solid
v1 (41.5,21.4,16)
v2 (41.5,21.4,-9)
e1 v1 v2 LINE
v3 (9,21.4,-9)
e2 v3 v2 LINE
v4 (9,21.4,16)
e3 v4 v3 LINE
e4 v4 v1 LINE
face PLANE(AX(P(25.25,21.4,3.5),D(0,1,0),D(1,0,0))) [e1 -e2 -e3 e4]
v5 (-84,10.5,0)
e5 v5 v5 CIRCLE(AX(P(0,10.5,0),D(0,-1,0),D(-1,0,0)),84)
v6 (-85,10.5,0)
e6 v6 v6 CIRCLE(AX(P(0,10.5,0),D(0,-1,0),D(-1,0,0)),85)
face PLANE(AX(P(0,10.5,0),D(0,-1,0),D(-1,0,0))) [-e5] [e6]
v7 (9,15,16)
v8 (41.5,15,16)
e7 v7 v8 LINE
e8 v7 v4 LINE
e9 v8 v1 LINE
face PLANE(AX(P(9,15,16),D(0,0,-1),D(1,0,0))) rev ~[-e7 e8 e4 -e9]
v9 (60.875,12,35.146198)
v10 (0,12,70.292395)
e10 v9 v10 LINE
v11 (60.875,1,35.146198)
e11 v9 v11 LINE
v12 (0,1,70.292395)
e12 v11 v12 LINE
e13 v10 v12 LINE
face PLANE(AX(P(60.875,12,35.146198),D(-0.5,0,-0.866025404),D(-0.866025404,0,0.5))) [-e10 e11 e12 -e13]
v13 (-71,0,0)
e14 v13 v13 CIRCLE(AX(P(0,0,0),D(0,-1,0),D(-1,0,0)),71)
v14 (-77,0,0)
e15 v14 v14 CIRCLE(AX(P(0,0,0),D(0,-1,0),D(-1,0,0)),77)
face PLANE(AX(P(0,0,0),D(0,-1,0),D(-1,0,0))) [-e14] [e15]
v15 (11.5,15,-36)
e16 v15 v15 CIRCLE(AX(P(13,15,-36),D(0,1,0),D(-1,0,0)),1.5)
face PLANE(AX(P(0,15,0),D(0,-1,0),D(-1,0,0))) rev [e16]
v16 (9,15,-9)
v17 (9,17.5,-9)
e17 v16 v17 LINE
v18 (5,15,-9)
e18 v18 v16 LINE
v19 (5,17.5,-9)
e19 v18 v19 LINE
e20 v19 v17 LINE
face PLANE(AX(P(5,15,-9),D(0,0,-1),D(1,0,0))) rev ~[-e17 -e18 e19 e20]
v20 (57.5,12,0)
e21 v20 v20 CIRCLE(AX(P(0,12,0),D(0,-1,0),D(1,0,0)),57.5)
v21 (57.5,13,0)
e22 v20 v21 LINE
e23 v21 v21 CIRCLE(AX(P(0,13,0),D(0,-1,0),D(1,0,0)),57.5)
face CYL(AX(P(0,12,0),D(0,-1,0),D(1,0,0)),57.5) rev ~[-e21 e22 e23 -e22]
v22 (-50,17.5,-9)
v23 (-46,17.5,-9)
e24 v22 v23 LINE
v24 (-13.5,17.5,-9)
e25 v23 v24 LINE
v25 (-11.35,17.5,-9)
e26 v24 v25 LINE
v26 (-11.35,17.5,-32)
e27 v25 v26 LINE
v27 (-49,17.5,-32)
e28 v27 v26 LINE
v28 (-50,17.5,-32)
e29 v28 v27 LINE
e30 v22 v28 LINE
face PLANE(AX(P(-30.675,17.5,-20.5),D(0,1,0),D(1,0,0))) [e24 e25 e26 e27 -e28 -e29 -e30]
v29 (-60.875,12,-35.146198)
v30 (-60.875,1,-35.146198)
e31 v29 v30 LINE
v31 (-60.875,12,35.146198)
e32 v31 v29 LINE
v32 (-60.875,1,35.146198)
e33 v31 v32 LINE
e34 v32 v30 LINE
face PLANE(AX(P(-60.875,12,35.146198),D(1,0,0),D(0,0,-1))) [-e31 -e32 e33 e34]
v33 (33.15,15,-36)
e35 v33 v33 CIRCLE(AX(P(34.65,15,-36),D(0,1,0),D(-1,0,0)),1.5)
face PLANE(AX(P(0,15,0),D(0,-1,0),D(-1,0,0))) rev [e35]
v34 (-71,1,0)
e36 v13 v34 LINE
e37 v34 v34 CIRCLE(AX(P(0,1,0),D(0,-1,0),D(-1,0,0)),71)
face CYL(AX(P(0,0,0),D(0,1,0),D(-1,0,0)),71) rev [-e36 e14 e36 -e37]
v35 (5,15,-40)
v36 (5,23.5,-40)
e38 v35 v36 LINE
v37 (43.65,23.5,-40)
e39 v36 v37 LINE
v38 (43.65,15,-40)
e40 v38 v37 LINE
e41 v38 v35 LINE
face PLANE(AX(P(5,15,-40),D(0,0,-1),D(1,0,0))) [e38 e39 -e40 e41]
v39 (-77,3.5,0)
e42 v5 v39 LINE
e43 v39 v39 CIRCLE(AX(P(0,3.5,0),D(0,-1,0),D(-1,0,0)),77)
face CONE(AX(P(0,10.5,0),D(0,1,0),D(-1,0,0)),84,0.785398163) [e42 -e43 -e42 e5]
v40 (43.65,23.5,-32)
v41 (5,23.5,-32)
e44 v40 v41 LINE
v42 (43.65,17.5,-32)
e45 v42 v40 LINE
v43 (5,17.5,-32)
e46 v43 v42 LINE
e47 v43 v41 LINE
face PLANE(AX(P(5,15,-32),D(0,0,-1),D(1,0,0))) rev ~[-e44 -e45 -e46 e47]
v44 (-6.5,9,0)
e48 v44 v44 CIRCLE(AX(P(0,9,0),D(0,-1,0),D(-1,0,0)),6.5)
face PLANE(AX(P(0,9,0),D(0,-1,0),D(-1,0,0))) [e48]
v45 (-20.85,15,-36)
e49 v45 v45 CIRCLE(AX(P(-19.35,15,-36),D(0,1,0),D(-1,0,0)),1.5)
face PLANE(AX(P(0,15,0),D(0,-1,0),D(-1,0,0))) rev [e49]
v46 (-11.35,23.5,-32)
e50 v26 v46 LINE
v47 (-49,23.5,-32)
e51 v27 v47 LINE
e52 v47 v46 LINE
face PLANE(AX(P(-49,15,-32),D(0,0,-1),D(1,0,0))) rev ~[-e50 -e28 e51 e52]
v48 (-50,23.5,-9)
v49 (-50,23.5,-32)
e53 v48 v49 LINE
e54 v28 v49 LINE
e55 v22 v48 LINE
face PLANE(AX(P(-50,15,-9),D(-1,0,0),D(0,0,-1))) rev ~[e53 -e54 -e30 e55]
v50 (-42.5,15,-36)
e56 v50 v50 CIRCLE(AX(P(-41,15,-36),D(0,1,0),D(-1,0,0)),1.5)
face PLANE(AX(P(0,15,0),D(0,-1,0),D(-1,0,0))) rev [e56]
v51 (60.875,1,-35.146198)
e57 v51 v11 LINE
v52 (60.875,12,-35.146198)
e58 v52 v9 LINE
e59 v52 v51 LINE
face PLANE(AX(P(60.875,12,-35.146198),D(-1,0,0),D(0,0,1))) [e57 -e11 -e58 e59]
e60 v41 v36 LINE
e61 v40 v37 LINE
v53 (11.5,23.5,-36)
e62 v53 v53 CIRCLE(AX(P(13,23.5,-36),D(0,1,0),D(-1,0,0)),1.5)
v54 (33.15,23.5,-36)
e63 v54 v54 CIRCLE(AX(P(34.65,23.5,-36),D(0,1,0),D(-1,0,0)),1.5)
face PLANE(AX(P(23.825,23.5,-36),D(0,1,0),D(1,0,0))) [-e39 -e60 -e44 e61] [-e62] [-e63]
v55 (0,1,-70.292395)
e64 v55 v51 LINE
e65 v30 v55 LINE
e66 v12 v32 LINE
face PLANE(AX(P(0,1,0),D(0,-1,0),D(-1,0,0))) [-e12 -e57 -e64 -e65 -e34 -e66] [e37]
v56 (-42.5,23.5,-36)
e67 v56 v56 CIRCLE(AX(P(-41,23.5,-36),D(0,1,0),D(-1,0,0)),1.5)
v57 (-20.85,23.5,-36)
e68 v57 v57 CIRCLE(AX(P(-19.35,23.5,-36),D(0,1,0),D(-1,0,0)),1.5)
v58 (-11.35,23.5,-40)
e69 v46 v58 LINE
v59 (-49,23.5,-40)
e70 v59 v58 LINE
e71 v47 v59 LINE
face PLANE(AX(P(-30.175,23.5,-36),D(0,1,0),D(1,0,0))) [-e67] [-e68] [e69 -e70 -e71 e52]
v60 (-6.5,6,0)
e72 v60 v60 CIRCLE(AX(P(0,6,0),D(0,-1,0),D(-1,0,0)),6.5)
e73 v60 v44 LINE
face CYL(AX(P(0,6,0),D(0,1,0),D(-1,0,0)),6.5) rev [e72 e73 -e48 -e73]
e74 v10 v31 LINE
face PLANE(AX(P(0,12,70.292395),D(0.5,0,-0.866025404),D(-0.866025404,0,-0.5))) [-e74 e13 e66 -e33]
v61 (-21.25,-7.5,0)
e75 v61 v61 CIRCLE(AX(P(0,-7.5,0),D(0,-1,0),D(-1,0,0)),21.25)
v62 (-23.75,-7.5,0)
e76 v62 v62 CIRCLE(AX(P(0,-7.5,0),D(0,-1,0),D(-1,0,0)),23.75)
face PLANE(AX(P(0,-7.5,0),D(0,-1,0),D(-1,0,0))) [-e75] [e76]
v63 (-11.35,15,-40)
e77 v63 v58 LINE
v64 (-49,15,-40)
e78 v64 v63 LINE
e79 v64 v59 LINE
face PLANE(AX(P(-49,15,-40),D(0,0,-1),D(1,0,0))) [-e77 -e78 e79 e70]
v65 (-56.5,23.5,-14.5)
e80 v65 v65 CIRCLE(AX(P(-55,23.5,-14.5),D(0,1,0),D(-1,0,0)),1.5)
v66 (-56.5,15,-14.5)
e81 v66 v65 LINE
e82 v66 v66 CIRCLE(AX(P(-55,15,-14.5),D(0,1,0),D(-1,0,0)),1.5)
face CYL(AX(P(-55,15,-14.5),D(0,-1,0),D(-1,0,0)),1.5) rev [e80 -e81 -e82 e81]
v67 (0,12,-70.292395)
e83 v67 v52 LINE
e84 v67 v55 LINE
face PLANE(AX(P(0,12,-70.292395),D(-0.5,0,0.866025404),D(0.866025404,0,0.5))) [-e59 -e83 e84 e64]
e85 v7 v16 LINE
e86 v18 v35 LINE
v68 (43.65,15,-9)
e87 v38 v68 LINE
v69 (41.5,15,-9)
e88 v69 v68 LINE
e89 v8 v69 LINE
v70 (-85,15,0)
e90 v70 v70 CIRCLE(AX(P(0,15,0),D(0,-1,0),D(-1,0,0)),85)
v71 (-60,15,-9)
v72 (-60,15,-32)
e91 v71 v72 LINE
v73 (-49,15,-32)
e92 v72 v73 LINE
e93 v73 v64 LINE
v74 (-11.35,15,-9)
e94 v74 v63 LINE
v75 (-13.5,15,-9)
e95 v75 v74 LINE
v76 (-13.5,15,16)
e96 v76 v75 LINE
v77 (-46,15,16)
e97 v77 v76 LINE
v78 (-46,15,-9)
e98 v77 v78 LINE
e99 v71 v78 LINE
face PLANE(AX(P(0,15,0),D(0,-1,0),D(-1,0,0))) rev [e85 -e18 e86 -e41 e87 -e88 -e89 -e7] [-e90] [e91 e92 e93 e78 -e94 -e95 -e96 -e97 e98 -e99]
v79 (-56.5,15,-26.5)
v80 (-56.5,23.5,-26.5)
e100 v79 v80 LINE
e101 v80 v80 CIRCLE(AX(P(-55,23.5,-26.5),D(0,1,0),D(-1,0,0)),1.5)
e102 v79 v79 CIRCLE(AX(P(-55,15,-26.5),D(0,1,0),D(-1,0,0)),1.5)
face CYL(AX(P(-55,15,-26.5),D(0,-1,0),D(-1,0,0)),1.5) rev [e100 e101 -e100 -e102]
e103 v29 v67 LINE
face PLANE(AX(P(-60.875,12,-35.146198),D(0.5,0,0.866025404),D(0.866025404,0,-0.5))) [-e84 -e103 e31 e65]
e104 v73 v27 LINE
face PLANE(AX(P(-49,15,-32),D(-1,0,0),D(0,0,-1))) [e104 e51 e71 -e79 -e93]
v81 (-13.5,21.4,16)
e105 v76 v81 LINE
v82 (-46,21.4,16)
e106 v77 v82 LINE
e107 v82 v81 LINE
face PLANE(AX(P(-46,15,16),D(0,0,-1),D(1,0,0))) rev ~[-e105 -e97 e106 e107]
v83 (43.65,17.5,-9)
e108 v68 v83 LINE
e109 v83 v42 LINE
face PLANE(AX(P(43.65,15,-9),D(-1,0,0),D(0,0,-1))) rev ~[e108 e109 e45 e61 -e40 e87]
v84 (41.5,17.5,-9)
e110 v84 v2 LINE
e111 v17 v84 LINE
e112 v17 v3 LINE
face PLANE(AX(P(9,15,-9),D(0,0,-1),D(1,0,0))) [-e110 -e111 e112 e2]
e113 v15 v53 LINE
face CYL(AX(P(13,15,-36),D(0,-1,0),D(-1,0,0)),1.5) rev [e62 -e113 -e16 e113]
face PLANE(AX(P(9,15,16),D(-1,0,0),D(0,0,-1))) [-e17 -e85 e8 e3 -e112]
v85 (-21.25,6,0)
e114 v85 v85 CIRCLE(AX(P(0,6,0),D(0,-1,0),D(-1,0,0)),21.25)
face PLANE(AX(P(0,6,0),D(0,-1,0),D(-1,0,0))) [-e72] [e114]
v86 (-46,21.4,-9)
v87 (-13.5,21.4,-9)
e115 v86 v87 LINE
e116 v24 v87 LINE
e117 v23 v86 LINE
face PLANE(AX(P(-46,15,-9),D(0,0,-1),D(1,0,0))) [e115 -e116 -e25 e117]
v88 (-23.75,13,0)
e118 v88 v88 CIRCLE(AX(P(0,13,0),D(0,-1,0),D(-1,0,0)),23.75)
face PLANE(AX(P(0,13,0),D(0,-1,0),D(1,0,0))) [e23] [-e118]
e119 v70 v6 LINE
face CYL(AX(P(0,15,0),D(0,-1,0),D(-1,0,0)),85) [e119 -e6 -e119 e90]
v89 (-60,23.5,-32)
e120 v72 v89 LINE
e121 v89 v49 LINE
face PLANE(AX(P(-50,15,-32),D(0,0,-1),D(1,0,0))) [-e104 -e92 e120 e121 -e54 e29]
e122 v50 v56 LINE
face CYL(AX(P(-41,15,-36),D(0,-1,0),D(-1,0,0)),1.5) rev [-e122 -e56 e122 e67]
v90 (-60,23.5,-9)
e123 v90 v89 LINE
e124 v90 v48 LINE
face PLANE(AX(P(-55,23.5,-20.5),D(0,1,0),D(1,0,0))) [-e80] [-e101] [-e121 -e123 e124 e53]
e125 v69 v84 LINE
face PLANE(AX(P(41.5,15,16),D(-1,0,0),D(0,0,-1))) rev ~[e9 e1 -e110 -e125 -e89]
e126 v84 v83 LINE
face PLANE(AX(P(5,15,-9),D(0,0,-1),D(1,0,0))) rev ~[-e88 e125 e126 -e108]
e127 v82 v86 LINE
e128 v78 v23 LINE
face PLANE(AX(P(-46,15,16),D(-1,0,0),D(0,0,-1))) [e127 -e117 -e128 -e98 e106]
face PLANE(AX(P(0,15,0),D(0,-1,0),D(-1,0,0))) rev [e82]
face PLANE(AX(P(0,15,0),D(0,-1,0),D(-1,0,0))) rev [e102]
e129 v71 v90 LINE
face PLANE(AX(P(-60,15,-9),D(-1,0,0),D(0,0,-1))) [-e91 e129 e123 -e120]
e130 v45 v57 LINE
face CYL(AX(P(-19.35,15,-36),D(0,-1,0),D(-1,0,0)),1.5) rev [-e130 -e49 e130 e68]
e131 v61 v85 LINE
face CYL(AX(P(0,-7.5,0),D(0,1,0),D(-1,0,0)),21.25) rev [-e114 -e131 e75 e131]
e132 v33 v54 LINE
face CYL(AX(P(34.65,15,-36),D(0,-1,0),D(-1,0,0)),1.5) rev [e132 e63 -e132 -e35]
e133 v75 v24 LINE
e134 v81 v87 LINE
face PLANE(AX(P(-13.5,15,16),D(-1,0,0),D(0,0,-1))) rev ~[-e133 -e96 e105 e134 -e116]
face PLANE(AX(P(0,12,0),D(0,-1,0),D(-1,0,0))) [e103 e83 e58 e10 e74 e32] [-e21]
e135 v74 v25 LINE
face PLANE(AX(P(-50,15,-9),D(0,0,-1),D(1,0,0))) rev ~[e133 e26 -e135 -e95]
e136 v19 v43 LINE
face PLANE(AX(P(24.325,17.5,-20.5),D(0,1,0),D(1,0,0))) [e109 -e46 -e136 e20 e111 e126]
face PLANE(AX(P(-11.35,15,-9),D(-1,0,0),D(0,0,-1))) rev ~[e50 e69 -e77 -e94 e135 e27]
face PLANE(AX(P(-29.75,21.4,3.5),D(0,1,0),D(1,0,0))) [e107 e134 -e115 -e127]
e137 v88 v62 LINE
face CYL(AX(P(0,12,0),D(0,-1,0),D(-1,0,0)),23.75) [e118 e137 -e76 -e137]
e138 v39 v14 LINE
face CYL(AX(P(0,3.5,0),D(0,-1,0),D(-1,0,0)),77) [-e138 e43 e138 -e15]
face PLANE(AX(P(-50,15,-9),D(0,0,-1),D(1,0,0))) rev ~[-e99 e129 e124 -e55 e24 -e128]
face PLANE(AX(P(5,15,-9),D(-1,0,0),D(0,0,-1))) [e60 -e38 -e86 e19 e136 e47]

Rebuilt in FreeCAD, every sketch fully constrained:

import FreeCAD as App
import Part
import Sketcher

V = App.Vector
Q = App.Units.Quantity


def add_polygon(sketch, points):
    """Adds a closed chain of lines whose ends are joined by coincident constraints."""
    first, n = sketch.GeometryCount, len(points)
    for a, b in zip(points, points[1:] + points[:1]):
        sketch.addGeometry(Part.LineSegment(App.Vector(*a, 0), App.Vector(*b, 0)), False)
    for i in range(n):
        sketch.addConstraint(Sketcher.Constraint("Coincident", first + i, 2, first + (i + 1) % n, 1))

doc = App.newDocument("Part")
body = doc.addObject("PartDesign::Body", "Body")

sketch1 = body.newObject("Sketcher::SketchObject", "Sketch")
sketch1.AttachmentSupport = (doc.getObject("XY_Plane"), [""])
sketch1.MapMode = "FlatFace"
add_polygon(sketch1, [(0, 15), (0, 9), (6.5, 9), (6.5, 6), (21.2, 6), (21.2, -7.5), (23.8, -7.5), (23.8, 12), (71, 12), (71, 0), (77, 0), (77, 3.5), (84, 10.5), (85, 10.5), (85, 15)])
sketch1.addConstraint(Sketcher.Constraint("Vertical", 0))
sketch1.addConstraint(Sketcher.Constraint("Horizontal", 1))
sketch1.addConstraint(Sketcher.Constraint("Vertical", 2))
sketch1.addConstraint(Sketcher.Constraint("Horizontal", 3))
sketch1.addConstraint(Sketcher.Constraint("Vertical", 4))
sketch1.addConstraint(Sketcher.Constraint("Horizontal", 5))
sketch1.addConstraint(Sketcher.Constraint("Vertical", 6))
sketch1.addConstraint(Sketcher.Constraint("Horizontal", 7))
sketch1.addConstraint(Sketcher.Constraint("Vertical", 8))
sketch1.addConstraint(Sketcher.Constraint("Horizontal", 9))
sketch1.addConstraint(Sketcher.Constraint("Vertical", 10))
sketch1.addConstraint(Sketcher.Constraint("Horizontal", 12))
sketch1.addConstraint(Sketcher.Constraint("Vertical", 13))
sketch1.addConstraint(Sketcher.Constraint("Horizontal", 14))
sketch1.addConstraint(Sketcher.Constraint("PointOnObject", 0, 2, -2))
sketch1.addConstraint(Sketcher.Constraint("PointOnObject", 8, 2, -1))
sketch1.addConstraint(Sketcher.Constraint("Equal", 9, 0))
sketch1.addConstraint(Sketcher.Constraint("DistanceX", 9, 1, 9, 2, Q("6 mm")))
sketch1.addConstraint(Sketcher.Constraint("DistanceX", 12, 1, 12, 2, Q("1 mm")))
sketch1.addConstraint(Sketcher.Constraint("DistanceX", 14, 2, 14, 1, Q("85 mm")))
sketch1.addConstraint(Sketcher.Constraint("DistanceY", 2, 2, 2, 1, Q("3 mm")))
sketch1.addConstraint(Sketcher.Constraint("DistanceY", 8, 2, 8, 1, Q("12 mm")))
sketch1.addConstraint(Sketcher.Constraint("Angle", 11, Q("45 deg")))
sketch1.addConstraint(Sketcher.Constraint("DistanceX", 1, 1, 1, 2, Q("6.5 mm")))
sketch1.addConstraint(Sketcher.Constraint("DistanceX", 5, 1, 5, 2, Q("2.5 mm")))
sketch1.addConstraint(Sketcher.Constraint("DistanceY", 4, 2, 4, 1, Q("13.5 mm")))
sketch1.addConstraint(Sketcher.Constraint("DistanceY", 6, 1, 6, 2, Q("19.5 mm")))
sketch1.addConstraint(Sketcher.Constraint("DistanceY", 10, 1, 10, 2, Q("3.5 mm")))
sketch1.addConstraint(Sketcher.Constraint("DistanceY", 13, 1, 13, 2, Q("4.5 mm")))
sketch1.addConstraint(Sketcher.Constraint("DistanceX", 3, 1, 3, 2, Q("14.75 mm")))
revolution = body.newObject("PartDesign::Revolution", "Revolution")
revolution.Profile = sketch1
revolution.ReferenceAxis = (sketch1, ["V_Axis"])
revolution.Angle = 360

sketch2 = body.newObject("Sketcher::SketchObject", "Sketch001")
sketch2.AttachmentSupport = (doc.getObject("XZ_Plane"), [""])
sketch2.MapMode = "FlatFace"
sketch2.AttachmentOffset = App.Placement(V(0, 0, -12), App.Rotation())
sketch2.addGeometry(Part.Circle(V(0, 0, 0), V(0, 0, 1), 71), False)
add_polygon(sketch2, [(-61, 35), (0, 70), (61, 35), (61, -35), (0, -70), (-61, -35)])
sketch2.addConstraint(Sketcher.Constraint("Vertical", 3))
sketch2.addConstraint(Sketcher.Constraint("Vertical", 6))
sketch2.addConstraint(Sketcher.Constraint("Coincident", 0, 3, -1, 1))
sketch2.addConstraint(Sketcher.Constraint("Symmetric", 1, 2, 4, 2, -1, 1))
sketch2.addConstraint(Sketcher.Constraint("Symmetric", 2, 2, 5, 2, -1, 1))
sketch2.addConstraint(Sketcher.Constraint("PointOnObject", 1, 2, -2))
sketch2.addConstraint(Sketcher.Constraint("Parallel", 1, 4))
sketch2.addConstraint(Sketcher.Constraint("Horizontal", 3, 2, 5, 2))
sketch2.addConstraint(Sketcher.Constraint("Diameter", 0, Q("142 mm")))
sketch2.addConstraint(Sketcher.Constraint("Angle", 1, Q("30 deg")))
sketch2.addConstraint(Sketcher.Constraint("DistanceX", 5, 2, 3, 2, Q("121.75 mm")))
sketch2.addConstraint(Sketcher.Constraint("DistanceY", 3, 2, 3, 1, Q("70.292395 mm")))
pad1 = body.newObject("PartDesign::Pad", "Pad")
pad1.Profile = sketch2
pad1.Length = 11

sketch3 = body.newObject("Sketcher::SketchObject", "Sketch002")
sketch3.AttachmentSupport = (doc.getObject("XZ_Plane"), [""])
sketch3.MapMode = "FlatFace"
sketch3.AttachmentOffset = App.Placement(V(0, 0, -15), App.Rotation())
add_polygon(sketch3, [(-49, -40), (-49, -32), (-11.3, -32), (-11.3, -40)])
sketch3.addGeometry(Part.Circle(V(-41, -36, 0), V(0, 0, 1), 1.5), False)
sketch3.addGeometry(Part.Circle(V(-19.4, -36, 0), V(0, 0, 1), 1.5), False)
add_polygon(sketch3, [(-60, -32), (-60, -9), (-50, -9), (-50, -32)])
sketch3.addGeometry(Part.Circle(V(-55, -14.5, 0), V(0, 0, 1), 1.5), False)
sketch3.addGeometry(Part.Circle(V(-55, -26.5, 0), V(0, 0, 1), 1.5), False)
add_polygon(sketch3, [(5, -40), (5, -32), (43.6, -32), (43.6, -40)])
sketch3.addGeometry(Part.Circle(V(13, -36, 0), V(0, 0, 1), 1.5), False)
sketch3.addGeometry(Part.Circle(V(34.6, -36, 0), V(0, 0, 1), 1.5), False)
sketch3.addConstraint(Sketcher.Constraint("Vertical", 0))
sketch3.addConstraint(Sketcher.Constraint("Horizontal", 1))
sketch3.addConstraint(Sketcher.Constraint("Vertical", 2))
sketch3.addConstraint(Sketcher.Constraint("Horizontal", 3))
sketch3.addConstraint(Sketcher.Constraint("Vertical", 6))
sketch3.addConstraint(Sketcher.Constraint("Horizontal", 7))
sketch3.addConstraint(Sketcher.Constraint("Vertical", 8))
sketch3.addConstraint(Sketcher.Constraint("Horizontal", 9))
sketch3.addConstraint(Sketcher.Constraint("Vertical", 12))
sketch3.addConstraint(Sketcher.Constraint("Horizontal", 13))
sketch3.addConstraint(Sketcher.Constraint("Vertical", 14))
sketch3.addConstraint(Sketcher.Constraint("Horizontal", 15))
sketch3.addConstraint(Sketcher.Constraint("Equal", 4, 5))
sketch3.addConstraint(Sketcher.Constraint("Equal", 5, 10))
sketch3.addConstraint(Sketcher.Constraint("Equal", 10, 11))
sketch3.addConstraint(Sketcher.Constraint("Equal", 11, 16))
sketch3.addConstraint(Sketcher.Constraint("Equal", 16, 17))
sketch3.addConstraint(Sketcher.Constraint("Horizontal", 4, 3, 5, 3))
sketch3.addConstraint(Sketcher.Constraint("Horizontal", 5, 3, 16, 3))
sketch3.addConstraint(Sketcher.Constraint("Horizontal", 16, 3, 17, 3))
sketch3.addConstraint(Sketcher.Constraint("Horizontal", 1, 2, 8, 2))
sketch3.addConstraint(Sketcher.Constraint("Horizontal", 9, 2, 12, 2))
sketch3.addConstraint(Sketcher.Constraint("Horizontal", 3, 2, 14, 2))
sketch3.addConstraint(Sketcher.Constraint("Vertical", 10, 3, 11, 3))
sketch3.addConstraint(Sketcher.Constraint("Diameter", 4, Q("3 mm")))
sketch3.addConstraint(Sketcher.Constraint("DistanceX", 7, 1, 7, 2, Q("10 mm")))
sketch3.addConstraint(Sketcher.Constraint("DistanceY", 0, 1, 0, 2, Q("8 mm")))
sketch3.addConstraint(Sketcher.Constraint("DistanceY", 6, 1, 6, 2, Q("23 mm")))
sketch3.addConstraint(Sketcher.Constraint("DistanceX", 4, 3, -1, 1, Q("41 mm")))
sketch3.addConstraint(Sketcher.Constraint("DistanceY", 4, 3, -1, 1, Q("36 mm")))
sketch3.addConstraint(Sketcher.Constraint("DistanceX", 10, 3, -1, 1, Q("55 mm")))
sketch3.addConstraint(Sketcher.Constraint("DistanceX", -1, 1, 16, 3, Q("13 mm")))
sketch3.addConstraint(Sketcher.Constraint("DistanceX", 0, 2, -1, 1, Q("49 mm")))
sketch3.addConstraint(Sketcher.Constraint("DistanceY", 0, 2, -1, 1, Q("32 mm")))
sketch3.addConstraint(Sketcher.Constraint("DistanceX", 6, 2, -1, 1, Q("60 mm")))
sketch3.addConstraint(Sketcher.Constraint("DistanceX", -1, 1, 12, 2, Q("5 mm")))
sketch3.addConstraint(Sketcher.Constraint("DistanceY", 11, 3, 10, 3, Q("12 mm")))
sketch3.addConstraint(Sketcher.Constraint("DistanceX", 5, 3, 17, 3, Q("54 mm")))
sketch3.addConstraint(Sketcher.Constraint("DistanceX", 5, 3, 1, 2, Q("8 mm")))
sketch3.addConstraint(Sketcher.Constraint("DistanceX", 17, 3, 13, 2, Q("9 mm")))
sketch3.addConstraint(Sketcher.Constraint("DistanceX", 1, 1, 1, 2, Q("37.65 mm")))
sketch3.addConstraint(Sketcher.Constraint("DistanceY", 10, 3, -1, 1, Q("14.5 mm")))
pad2 = body.newObject("PartDesign::Pad", "Pad001")
pad2.Profile = sketch3
pad2.Length = 8.5
pad2.Reversed = True

sketch4 = body.newObject("Sketcher::SketchObject", "Sketch003")
sketch4.AttachmentSupport = (doc.getObject("XZ_Plane"), [""])
sketch4.MapMode = "FlatFace"
sketch4.AttachmentOffset = App.Placement(V(0, 0, -12), App.Rotation())
sketch4.addGeometry(Part.Circle(V(0, 0, 0), V(0, 0, 1), 58), False)
sketch4.addGeometry(Part.Circle(V(0, 0, 0), V(0, 0, 1), 24), False)
sketch4.addConstraint(Sketcher.Constraint("Coincident", 0, 3, -1, 1))
sketch4.addConstraint(Sketcher.Constraint("Coincident", 1, 3, -1, 1))
sketch4.addConstraint(Sketcher.Constraint("Diameter", 0, Q("115 mm")))
sketch4.addConstraint(Sketcher.Constraint("Diameter", 1, Q("47.5 mm")))
pocket1 = body.newObject("PartDesign::Pocket", "Pocket")
pocket1.Profile = sketch4
pocket1.Length = 1

sketch5 = body.newObject("Sketcher::SketchObject", "Sketch004")
sketch5.AttachmentSupport = (doc.getObject("XZ_Plane"), [""])
sketch5.MapMode = "FlatFace"
sketch5.AttachmentOffset = App.Placement(V(0, 0, -15), App.Rotation())
add_polygon(sketch5, [(-50, -32), (-50, -9), (-11, -9), (-11, -32)])
add_polygon(sketch5, [(5, -32), (5, -9), (44, -9), (44, -32)])
sketch5.addConstraint(Sketcher.Constraint("Vertical", 0))
sketch5.addConstraint(Sketcher.Constraint("Horizontal", 1))
sketch5.addConstraint(Sketcher.Constraint("Vertical", 2))
sketch5.addConstraint(Sketcher.Constraint("Horizontal", 3))
sketch5.addConstraint(Sketcher.Constraint("Vertical", 4))
sketch5.addConstraint(Sketcher.Constraint("Horizontal", 5))
sketch5.addConstraint(Sketcher.Constraint("Vertical", 6))
sketch5.addConstraint(Sketcher.Constraint("Horizontal", 7))
sketch5.addConstraint(Sketcher.Constraint("Horizontal", 1, 2, 4, 2))
sketch5.addConstraint(Sketcher.Constraint("Horizontal", 3, 2, 6, 2))
sketch5.addConstraint(Sketcher.Constraint("Equal", 3, 5))
sketch5.addConstraint(Sketcher.Constraint("DistanceY", 0, 1, 0, 2, Q("23 mm")))
sketch5.addConstraint(Sketcher.Constraint("DistanceX", 0, 2, -1, 1, Q("50 mm")))
sketch5.addConstraint(Sketcher.Constraint("DistanceY", 0, 2, -1, 1, Q("9 mm")))
sketch5.addConstraint(Sketcher.Constraint("DistanceX", -1, 1, 4, 2, Q("5 mm")))
sketch5.addConstraint(Sketcher.Constraint("DistanceX", 1, 1, 1, 2, Q("38.65 mm")))
pad3 = body.newObject("PartDesign::Pad", "Pad002")
pad3.Profile = sketch5
pad3.Length = 2.5
pad3.Reversed = True

sketch6 = body.newObject("Sketcher::SketchObject", "Sketch005")
sketch6.AttachmentSupport = (doc.getObject("XZ_Plane"), [""])
sketch6.MapMode = "FlatFace"
sketch6.AttachmentOffset = App.Placement(V(0, 0, -15), App.Rotation())
add_polygon(sketch6, [(-46, -9), (-46, 16), (-14, 16), (-14, -9)])
add_polygon(sketch6, [(9, -9), (9, 16), (42, 16), (42, -9)])
sketch6.addConstraint(Sketcher.Constraint("Vertical", 0))
sketch6.addConstraint(Sketcher.Constraint("Horizontal", 1))
sketch6.addConstraint(Sketcher.Constraint("Vertical", 2))
sketch6.addConstraint(Sketcher.Constraint("Horizontal", 3))
sketch6.addConstraint(Sketcher.Constraint("Vertical", 4))
sketch6.addConstraint(Sketcher.Constraint("Horizontal", 5))
sketch6.addConstraint(Sketcher.Constraint("Vertical", 6))
sketch6.addConstraint(Sketcher.Constraint("Horizontal", 7))
sketch6.addConstraint(Sketcher.Constraint("Horizontal", 1, 2, 4, 2))
sketch6.addConstraint(Sketcher.Constraint("Horizontal", 3, 2, 6, 2))
sketch6.addConstraint(Sketcher.Constraint("Equal", 3, 5))
sketch6.addConstraint(Sketcher.Constraint("DistanceY", 0, 1, 0, 2, Q("25 mm")))
sketch6.addConstraint(Sketcher.Constraint("DistanceX", 1, 1, 1, 2, Q("32.5 mm")))
sketch6.addConstraint(Sketcher.Constraint("DistanceX", 0, 2, -1, 1, Q("46 mm")))
sketch6.addConstraint(Sketcher.Constraint("DistanceY", -1, 1, 0, 2, Q("16 mm")))
sketch6.addConstraint(Sketcher.Constraint("DistanceX", -1, 1, 4, 2, Q("9 mm")))
pad4 = body.newObject("PartDesign::Pad", "Pad003")
pad4.Profile = sketch6
pad4.Length = 6.4
pad4.Reversed = True

doc.recompute()
